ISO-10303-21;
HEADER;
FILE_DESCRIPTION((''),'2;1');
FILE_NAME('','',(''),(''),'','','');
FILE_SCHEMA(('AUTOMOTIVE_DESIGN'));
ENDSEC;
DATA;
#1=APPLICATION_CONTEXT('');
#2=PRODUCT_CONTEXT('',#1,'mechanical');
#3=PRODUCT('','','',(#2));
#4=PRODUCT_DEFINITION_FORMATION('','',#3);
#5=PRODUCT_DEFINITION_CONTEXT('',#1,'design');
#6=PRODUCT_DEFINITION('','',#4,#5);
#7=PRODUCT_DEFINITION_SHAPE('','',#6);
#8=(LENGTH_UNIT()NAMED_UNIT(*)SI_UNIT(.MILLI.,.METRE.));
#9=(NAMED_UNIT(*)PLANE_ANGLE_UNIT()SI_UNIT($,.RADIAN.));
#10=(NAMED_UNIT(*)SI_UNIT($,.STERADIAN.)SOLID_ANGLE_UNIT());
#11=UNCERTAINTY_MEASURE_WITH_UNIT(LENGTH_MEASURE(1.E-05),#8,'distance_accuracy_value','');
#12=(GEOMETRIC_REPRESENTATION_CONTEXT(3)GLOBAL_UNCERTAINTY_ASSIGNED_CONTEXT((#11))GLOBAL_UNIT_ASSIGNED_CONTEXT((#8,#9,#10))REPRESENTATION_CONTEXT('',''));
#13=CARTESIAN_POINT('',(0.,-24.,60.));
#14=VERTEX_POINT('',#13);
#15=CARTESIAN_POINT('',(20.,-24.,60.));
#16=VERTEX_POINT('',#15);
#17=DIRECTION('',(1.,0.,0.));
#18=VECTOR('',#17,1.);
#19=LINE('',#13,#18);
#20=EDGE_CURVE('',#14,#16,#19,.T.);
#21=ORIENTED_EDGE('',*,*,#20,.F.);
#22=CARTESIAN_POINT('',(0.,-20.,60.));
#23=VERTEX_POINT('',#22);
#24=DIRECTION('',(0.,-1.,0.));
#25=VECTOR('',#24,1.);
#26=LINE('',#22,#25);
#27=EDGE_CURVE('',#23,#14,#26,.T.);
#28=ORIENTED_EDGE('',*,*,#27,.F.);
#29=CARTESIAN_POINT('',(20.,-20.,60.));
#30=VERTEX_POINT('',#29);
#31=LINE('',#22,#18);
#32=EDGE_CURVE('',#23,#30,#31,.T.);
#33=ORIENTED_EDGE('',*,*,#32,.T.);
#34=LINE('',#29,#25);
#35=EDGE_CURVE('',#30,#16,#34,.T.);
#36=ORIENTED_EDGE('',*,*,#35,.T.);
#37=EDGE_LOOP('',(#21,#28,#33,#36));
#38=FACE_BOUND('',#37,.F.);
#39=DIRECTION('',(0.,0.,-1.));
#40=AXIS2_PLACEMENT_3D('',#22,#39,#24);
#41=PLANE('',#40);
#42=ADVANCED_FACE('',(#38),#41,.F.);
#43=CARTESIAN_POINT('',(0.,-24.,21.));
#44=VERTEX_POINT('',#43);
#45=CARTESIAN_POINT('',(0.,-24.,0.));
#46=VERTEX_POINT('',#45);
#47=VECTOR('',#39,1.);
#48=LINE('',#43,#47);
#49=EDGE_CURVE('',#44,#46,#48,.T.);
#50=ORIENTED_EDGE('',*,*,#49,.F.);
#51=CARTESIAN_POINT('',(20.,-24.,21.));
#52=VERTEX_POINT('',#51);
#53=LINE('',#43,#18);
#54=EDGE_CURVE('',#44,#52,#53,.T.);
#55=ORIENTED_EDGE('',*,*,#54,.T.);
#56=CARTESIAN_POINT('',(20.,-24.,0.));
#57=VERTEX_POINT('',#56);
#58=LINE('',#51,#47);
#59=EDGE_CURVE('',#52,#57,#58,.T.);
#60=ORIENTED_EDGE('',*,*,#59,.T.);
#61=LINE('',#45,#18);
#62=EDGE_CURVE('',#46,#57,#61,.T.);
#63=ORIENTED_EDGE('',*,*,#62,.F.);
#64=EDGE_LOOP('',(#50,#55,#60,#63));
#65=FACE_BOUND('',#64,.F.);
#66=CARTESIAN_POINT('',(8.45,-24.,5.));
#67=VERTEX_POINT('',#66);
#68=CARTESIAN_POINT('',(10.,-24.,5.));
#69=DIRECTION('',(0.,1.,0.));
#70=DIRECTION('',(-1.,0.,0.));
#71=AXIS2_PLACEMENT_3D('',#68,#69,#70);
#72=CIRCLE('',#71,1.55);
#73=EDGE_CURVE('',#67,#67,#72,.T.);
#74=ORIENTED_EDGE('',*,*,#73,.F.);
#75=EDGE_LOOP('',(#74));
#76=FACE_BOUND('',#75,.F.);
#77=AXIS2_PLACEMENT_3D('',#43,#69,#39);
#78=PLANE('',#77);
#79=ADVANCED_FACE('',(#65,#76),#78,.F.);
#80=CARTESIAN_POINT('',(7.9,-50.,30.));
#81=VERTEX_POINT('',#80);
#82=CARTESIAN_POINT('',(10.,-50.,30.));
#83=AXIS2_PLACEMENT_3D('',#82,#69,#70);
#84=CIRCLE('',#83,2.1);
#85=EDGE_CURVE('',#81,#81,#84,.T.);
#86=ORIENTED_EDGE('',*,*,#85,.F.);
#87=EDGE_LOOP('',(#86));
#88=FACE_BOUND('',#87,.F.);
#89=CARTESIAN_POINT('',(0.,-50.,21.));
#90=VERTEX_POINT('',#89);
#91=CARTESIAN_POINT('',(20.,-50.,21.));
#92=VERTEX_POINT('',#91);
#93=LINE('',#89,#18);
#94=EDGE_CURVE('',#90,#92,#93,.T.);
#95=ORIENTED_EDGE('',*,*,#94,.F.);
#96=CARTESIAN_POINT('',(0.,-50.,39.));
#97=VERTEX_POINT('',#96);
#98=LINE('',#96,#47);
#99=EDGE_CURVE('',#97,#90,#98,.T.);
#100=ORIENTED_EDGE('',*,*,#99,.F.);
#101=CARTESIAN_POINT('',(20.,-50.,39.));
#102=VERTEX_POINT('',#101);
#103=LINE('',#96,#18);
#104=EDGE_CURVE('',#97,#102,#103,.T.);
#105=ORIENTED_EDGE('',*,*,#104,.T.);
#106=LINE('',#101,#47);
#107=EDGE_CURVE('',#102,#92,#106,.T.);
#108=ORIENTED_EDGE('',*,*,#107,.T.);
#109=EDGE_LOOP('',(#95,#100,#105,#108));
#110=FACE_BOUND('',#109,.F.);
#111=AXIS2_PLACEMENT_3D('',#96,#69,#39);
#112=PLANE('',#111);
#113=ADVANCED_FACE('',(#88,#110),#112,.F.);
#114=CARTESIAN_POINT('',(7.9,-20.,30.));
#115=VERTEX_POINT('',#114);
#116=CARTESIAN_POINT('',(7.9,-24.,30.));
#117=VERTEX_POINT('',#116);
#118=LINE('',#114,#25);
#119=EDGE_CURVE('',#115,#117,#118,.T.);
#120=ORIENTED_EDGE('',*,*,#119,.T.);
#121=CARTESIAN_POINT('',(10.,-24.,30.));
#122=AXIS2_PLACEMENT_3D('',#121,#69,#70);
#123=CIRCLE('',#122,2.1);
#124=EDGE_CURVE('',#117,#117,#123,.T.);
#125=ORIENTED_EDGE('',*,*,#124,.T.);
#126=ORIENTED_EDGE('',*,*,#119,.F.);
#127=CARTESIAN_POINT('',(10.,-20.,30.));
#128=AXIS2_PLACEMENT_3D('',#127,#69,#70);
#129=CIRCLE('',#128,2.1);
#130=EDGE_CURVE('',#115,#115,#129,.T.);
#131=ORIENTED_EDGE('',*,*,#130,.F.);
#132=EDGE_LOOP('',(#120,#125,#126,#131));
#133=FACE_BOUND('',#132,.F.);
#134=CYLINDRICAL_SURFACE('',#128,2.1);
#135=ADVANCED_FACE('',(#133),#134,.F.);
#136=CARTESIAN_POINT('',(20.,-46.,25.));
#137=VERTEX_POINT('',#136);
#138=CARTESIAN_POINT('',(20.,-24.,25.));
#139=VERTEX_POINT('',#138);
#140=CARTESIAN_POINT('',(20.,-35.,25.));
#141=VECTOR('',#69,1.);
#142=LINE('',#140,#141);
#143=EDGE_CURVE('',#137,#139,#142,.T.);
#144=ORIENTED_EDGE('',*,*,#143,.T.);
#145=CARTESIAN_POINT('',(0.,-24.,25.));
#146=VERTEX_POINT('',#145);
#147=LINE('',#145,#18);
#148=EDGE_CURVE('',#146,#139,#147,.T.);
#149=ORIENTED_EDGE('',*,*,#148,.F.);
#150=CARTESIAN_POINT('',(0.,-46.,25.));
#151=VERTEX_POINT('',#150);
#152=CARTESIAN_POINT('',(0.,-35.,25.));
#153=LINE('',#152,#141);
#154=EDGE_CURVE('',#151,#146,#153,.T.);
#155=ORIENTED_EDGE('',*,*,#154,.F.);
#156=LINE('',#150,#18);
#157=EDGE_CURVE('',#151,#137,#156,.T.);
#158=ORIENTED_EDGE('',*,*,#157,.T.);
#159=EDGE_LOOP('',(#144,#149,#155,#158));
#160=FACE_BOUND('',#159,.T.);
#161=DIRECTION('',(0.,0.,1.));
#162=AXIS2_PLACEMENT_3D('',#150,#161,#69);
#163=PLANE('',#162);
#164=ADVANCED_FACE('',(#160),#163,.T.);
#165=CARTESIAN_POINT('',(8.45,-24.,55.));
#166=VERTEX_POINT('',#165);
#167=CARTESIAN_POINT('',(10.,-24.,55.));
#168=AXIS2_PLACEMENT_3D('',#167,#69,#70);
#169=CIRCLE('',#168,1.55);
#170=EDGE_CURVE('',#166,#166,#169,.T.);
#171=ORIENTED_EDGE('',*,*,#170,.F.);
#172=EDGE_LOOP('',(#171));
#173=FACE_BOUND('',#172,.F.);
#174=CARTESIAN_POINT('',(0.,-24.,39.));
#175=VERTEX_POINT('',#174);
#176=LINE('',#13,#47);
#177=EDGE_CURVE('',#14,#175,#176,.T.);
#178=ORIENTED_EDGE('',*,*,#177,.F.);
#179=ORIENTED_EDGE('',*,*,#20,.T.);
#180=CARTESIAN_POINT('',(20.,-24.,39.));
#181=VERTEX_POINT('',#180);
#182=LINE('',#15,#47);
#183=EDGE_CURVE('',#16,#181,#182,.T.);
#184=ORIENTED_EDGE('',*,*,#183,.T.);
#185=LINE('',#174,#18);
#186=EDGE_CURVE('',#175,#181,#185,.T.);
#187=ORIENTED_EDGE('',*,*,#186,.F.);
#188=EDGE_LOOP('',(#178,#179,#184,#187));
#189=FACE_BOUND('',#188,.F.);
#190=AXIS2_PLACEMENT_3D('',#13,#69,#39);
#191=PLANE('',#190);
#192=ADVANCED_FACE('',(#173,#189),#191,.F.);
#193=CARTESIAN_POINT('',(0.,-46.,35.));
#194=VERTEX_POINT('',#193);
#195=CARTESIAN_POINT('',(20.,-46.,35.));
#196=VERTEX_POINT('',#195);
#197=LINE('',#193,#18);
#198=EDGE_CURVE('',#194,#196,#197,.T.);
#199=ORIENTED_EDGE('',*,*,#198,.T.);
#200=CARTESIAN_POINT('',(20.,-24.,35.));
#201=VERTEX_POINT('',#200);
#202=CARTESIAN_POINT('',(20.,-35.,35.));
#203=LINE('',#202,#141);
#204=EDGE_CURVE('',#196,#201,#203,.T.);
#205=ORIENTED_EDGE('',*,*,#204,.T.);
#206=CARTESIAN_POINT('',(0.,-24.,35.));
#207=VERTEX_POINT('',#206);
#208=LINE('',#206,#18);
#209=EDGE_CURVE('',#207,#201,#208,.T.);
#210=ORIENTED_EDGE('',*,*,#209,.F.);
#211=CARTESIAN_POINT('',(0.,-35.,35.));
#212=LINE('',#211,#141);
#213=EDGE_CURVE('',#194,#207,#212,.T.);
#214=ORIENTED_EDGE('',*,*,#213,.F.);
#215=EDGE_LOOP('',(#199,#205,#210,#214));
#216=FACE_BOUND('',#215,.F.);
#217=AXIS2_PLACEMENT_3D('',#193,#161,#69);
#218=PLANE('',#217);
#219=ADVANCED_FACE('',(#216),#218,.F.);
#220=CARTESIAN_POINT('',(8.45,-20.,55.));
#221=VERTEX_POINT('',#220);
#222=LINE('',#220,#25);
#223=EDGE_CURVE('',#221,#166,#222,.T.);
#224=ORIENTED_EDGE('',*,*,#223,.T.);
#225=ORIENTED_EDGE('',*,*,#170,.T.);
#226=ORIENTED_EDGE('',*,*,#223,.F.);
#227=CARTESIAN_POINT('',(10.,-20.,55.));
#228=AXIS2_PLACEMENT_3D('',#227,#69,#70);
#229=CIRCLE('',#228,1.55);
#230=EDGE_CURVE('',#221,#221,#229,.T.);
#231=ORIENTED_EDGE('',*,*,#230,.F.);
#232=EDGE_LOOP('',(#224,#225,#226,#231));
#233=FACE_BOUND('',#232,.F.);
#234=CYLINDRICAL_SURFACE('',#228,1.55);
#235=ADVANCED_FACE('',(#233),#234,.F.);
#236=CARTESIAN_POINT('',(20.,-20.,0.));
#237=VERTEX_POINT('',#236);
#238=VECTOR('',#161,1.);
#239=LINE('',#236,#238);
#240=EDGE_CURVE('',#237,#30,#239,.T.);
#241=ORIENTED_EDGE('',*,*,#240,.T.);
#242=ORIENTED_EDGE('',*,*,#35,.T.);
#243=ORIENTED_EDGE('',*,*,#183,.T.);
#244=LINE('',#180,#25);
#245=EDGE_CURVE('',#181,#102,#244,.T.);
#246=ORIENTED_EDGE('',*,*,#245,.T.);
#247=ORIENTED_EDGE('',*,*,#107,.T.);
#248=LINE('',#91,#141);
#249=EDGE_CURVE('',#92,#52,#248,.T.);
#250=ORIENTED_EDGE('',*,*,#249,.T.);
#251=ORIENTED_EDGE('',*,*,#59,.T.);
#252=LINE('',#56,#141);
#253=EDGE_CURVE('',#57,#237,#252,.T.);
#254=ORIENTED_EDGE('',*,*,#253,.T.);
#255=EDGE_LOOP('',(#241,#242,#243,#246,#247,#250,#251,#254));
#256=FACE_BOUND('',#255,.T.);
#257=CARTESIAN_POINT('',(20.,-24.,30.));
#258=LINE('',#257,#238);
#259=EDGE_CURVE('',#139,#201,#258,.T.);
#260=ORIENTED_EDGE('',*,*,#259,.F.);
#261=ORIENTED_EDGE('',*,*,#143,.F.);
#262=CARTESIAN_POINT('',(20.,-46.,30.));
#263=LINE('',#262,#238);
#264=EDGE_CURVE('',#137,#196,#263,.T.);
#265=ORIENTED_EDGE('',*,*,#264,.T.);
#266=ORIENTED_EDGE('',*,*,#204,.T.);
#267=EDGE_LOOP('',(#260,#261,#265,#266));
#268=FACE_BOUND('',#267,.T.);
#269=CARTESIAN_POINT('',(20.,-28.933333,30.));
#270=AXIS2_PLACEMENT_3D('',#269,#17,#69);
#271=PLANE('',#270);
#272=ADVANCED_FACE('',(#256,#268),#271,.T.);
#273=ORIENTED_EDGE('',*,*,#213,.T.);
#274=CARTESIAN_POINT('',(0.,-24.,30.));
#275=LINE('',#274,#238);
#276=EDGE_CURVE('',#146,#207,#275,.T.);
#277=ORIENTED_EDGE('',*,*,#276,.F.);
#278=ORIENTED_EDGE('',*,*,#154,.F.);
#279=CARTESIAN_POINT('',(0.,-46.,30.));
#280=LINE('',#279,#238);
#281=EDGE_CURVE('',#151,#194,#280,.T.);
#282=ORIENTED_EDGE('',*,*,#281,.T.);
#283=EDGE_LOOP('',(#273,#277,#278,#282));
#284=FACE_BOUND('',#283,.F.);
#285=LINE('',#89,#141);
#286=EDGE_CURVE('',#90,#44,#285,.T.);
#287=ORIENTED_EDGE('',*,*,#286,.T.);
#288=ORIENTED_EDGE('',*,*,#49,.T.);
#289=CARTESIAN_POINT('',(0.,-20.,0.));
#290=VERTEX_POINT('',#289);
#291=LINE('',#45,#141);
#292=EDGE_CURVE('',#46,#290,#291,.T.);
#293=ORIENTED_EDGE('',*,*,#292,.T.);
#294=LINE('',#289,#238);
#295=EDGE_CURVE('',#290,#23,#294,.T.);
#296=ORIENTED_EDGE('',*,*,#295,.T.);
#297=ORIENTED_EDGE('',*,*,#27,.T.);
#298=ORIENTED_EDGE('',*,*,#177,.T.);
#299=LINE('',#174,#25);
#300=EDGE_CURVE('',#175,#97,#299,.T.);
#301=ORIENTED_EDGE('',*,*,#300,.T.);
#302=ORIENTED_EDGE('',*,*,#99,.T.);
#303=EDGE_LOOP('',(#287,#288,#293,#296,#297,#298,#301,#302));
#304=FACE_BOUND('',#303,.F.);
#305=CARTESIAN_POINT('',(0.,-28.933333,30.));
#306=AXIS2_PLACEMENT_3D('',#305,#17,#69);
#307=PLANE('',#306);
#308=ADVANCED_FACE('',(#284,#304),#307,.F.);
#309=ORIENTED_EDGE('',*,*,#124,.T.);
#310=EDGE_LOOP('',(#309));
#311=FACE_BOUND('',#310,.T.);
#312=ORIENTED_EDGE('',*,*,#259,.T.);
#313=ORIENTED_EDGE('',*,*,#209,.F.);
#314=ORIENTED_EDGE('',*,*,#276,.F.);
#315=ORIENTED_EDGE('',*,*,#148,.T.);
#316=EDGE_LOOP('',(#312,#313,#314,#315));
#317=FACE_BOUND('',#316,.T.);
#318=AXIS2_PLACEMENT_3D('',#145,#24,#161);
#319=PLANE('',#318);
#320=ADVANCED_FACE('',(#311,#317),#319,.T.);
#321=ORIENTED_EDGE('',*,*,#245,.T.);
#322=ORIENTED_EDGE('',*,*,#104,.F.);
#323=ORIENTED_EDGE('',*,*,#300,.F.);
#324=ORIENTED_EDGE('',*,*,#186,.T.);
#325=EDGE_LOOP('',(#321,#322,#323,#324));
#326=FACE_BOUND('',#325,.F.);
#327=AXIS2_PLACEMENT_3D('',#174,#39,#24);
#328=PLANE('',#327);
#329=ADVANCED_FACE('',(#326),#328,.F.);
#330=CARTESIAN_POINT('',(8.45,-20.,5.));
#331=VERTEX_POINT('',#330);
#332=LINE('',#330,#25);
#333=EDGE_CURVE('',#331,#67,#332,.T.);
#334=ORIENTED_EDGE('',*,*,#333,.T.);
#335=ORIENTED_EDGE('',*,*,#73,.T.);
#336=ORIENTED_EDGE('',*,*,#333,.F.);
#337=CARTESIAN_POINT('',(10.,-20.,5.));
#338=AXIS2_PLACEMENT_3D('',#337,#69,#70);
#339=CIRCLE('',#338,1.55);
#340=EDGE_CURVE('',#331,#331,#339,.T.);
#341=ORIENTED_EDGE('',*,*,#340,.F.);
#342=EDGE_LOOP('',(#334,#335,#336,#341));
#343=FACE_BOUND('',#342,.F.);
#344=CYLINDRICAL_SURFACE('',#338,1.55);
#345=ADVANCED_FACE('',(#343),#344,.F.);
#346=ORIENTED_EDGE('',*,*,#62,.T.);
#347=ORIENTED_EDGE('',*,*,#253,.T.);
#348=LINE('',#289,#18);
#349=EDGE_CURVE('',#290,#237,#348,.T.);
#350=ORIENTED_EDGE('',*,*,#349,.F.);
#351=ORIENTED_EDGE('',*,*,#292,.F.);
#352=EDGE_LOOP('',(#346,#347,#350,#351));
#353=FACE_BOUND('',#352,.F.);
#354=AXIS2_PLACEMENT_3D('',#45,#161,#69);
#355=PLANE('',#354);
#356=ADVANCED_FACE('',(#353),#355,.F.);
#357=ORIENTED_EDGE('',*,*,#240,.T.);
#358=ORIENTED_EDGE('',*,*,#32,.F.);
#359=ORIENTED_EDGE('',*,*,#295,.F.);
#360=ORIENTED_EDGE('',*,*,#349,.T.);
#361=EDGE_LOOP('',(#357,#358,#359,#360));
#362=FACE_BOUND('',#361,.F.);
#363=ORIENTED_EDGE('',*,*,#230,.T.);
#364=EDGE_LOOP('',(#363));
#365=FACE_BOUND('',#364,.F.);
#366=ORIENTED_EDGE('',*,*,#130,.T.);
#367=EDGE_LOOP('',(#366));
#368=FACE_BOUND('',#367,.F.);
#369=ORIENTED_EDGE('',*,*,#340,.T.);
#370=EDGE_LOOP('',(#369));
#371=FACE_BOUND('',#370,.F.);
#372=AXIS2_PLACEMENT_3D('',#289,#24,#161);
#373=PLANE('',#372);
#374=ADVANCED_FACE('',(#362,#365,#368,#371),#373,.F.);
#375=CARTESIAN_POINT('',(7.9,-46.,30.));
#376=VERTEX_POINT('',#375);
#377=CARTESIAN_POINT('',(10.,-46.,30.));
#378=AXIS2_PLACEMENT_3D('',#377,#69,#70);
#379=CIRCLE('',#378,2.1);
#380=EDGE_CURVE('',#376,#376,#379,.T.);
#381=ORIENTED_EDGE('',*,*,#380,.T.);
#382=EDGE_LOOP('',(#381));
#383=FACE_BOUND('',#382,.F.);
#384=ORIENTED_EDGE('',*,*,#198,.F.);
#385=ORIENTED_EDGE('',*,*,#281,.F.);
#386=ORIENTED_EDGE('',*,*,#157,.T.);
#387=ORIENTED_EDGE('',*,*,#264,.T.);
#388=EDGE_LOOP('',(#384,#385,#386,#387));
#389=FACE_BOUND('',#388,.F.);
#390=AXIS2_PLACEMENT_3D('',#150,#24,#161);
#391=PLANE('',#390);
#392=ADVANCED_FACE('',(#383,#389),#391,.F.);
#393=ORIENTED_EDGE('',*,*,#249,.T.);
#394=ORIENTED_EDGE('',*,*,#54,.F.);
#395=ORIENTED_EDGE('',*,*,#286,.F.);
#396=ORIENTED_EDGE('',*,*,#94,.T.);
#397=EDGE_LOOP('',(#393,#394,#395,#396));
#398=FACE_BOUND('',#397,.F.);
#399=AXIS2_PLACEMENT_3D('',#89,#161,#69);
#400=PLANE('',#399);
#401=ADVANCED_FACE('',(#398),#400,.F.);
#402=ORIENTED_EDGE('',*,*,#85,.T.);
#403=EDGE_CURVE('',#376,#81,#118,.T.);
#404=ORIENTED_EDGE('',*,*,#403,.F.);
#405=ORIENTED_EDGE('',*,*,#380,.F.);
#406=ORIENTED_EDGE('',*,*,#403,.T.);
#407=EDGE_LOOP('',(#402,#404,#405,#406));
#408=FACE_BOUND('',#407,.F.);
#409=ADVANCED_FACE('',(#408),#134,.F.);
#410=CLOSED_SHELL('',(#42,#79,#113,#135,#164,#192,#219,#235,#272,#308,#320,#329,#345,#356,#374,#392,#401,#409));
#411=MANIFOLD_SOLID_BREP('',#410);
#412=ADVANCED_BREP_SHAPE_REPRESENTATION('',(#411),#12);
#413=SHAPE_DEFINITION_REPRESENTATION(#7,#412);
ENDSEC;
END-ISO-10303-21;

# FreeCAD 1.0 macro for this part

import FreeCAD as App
import Part
import Sketcher
from FreeCAD import Vector


def add_polygon(sketch, points):
    """Adds a closed chain of lines whose ends are joined by coincident constraints."""
    first, n = sketch.GeometryCount, len(points)
    for a, b in zip(points, points[1:] + points[:1]):
        sketch.addGeometry(Part.LineSegment(App.Vector(*a, 0), App.Vector(*b, 0)), False)
    for i in range(n):
        sketch.addConstraint(Sketcher.Constraint("Coincident", first + i, 2, first + (i + 1) % n, 1))

doc = App.newDocument("Part")
body = doc.addObject("PartDesign::Body", "Body")

sketch1 = body.newObject("Sketcher::SketchObject", "Sketch")
sketch1.AttachmentSupport = (doc.getObject("YZ_Plane"), [""])
sketch1.MapMode = "FlatFace"
add_polygon(sketch1, [(-24, 0), (-20, 0), (-20, 60), (-24, 60), (-24, 39), (-50, 39), (-50, 21), (-24, 21)])
add_polygon(sketch1, [(-24, 25), (-46, 25), (-46, 35), (-24, 35)])
sketch1.addConstraint(Sketcher.Constraint("Horizontal", 0))
sketch1.addConstraint(Sketcher.Constraint("Vertical", 1))
sketch1.addConstraint(Sketcher.Constraint("Horizontal", 2))
sketch1.addConstraint(Sketcher.Constraint("Vertical", 3))
sketch1.addConstraint(Sketcher.Constraint("Horizontal", 4))
sketch1.addConstraint(Sketcher.Constraint("Vertical", 5))
sketch1.addConstraint(Sketcher.Constraint("Horizontal", 6))
sketch1.addConstraint(Sketcher.Constraint("Vertical", 7))
sketch1.addConstraint(Sketcher.Constraint("Horizontal", 8))
sketch1.addConstraint(Sketcher.Constraint("Vertical", 9))
sketch1.addConstraint(Sketcher.Constraint("Horizontal", 10))
sketch1.addConstraint(Sketcher.Constraint("Vertical", 11))
sketch1.addConstraint(Sketcher.Constraint("PointOnObject", 0, 2, -1))
sketch1.addConstraint(Sketcher.Constraint("Vertical", 3, 2, 6, 2))
sketch1.addConstraint(Sketcher.Constraint("Vertical", 7, 2, 10, 2))
sketch1.addConstraint(Sketcher.Constraint("Equal", 3, 7))
sketch1.addConstraint(Sketcher.Constraint("DistanceX", 0, 1, 0, 2, 4.0))
sketch1.addConstraint(Sketcher.Constraint("DistanceX", 4, 2, 4, 1, 26.0))
sketch1.addConstraint(Sketcher.Constraint("DistanceX", 8, 2, 8, 1, 22.0))
sketch1.addConstraint(Sketcher.Constraint("DistanceY", 1, 1, 1, 2, 60.0))
sketch1.addConstraint(Sketcher.Constraint("DistanceY", 3, 2, 3, 1, 21.0))
sketch1.addConstraint(Sketcher.Constraint("DistanceY", 9, 1, 9, 2, 10.0))
sketch1.addConstraint(Sketcher.Constraint("DistanceX", 0, 2, -1, 1, 20.0))
sketch1.addConstraint(Sketcher.Constraint("DistanceY", -1, 1, 8, 2, 25.0))
pad1 = body.newObject("PartDesign::Pad", "Pad")
pad1.Profile = sketch1
pad1.Length = 20

sketch2 = body.newObject("Sketcher::SketchObject", "Sketch001")
sketch2.AttachmentSupport = (doc.getObject("XZ_Plane"), [""])
sketch2.MapMode = "FlatFace"
sketch2.AttachmentOffset = App.Placement(Vector(0, 0, 20), App.Rotation())
sketch2.addGeometry(Part.Circle(Vector(10, 55, 0), Vector(0, 0, 1), 1.6), False)
sketch2.addGeometry(Part.Circle(Vector(10, 5, 0), Vector(0, 0, 1), 1.6), False)
sketch2.addGeometry(Part.Circle(Vector(10, 30, 0), Vector(0, 0, 1), 2.1), False)
sketch2.addConstraint(Sketcher.Constraint("Equal", 0, 1))
sketch2.addConstraint(Sketcher.Constraint("Vertical", 0, 3, 1, 3))
sketch2.addConstraint(Sketcher.Constraint("Vertical", 1, 3, 2, 3))
sketch2.addConstraint(Sketcher.Constraint("Diameter", 0, 3.1))
sketch2.addConstraint(Sketcher.Constraint("Diameter", 2, 4.2))
sketch2.addConstraint(Sketcher.Constraint("DistanceX", -1, 1, 0, 3, 10.0))
sketch2.addConstraint(Sketcher.Constraint("DistanceY", -1, 1, 0, 3, 55.0))
sketch2.addConstraint(Sketcher.Constraint("DistanceY", -1, 1, 1, 3, 5.0))
sketch2.addConstraint(Sketcher.Constraint("DistanceY", -1, 1, 2, 3, 30.0))
pocket1 = body.newObject("PartDesign::Pocket", "Pocket")
pocket1.Profile = sketch2
pocket1.Type = "ThroughAll"
pocket1.Reversed = True

doc.recompute()
